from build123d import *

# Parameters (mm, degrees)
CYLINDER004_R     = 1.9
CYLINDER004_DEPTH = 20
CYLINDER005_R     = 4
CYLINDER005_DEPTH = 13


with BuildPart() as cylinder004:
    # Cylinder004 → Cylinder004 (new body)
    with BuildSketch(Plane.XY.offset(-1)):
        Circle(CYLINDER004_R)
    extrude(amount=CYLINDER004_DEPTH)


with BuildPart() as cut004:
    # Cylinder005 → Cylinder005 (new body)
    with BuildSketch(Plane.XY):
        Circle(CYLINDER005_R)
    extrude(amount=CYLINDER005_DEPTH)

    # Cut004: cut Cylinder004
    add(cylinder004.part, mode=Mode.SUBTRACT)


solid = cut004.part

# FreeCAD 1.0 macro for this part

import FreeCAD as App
import Part
import Sketcher
from FreeCAD import Vector

doc = App.newDocument("Part")
params = doc.addObject("Spreadsheet::Sheet", "Params")
for row, (alias, value) in enumerate([
    ("sketch1_diameter", "3.8 mm"),
    ("pad1_length", "20 mm"),
    ("sketch2_diameter", "8 mm"),
    ("pad2_length", "13 mm"),
], start=1):
    params.set(f"A{row}", alias)
    params.set(f"B{row}", "=" + value)
    params.setAlias(f"B{row}", alias)

body = doc.addObject("PartDesign::Body", "Body")

sketch1 = body.newObject("Sketcher::SketchObject", "Sketch")
sketch1.AttachmentSupport = (doc.getObject("XY_Plane"), [""])
sketch1.MapMode = "FlatFace"
sketch1.AttachmentOffset = App.Placement(Vector(0, 0, -1), App.Rotation())
sketch1.addGeometry(Part.Circle(Vector(0, 0, 0), Vector(0, 0, 1), 1.9), False)
sketch1.addConstraint([
    Sketcher.Constraint("Coincident", 0, 3, -1, 1),
    Sketcher.Constraint("Diameter", 0, 3.8),
])
sketch1.setExpression("Constraints[1]", "Params.sketch1_diameter")
pad1 = body.newObject("PartDesign::Pad", "Pad")
pad1.Profile = sketch1
pad1.setExpression("Length", "Params.pad1_length")
body2 = doc.addObject("PartDesign::Body", "Body001")

sketch2 = body2.newObject("Sketcher::SketchObject", "Sketch001")
sketch2.AttachmentSupport = (doc.getObject("XY_Plane001"), [""])
sketch2.MapMode = "FlatFace"
sketch2.addGeometry(Part.Circle(Vector(0, 0, 0), Vector(0, 0, 1), 4), False)
sketch2.addConstraint([
    Sketcher.Constraint("Coincident", 0, 3, -1, 1),
    Sketcher.Constraint("Diameter", 0, 8.0),
])
sketch2.setExpression("Constraints[1]", "Params.sketch2_diameter")
pad2 = body2.newObject("PartDesign::Pad", "Pad001")
pad2.Profile = sketch2
pad2.setExpression("Length", "Params.pad2_length")
doc.recompute()

boolean = body2.newObject("PartDesign::Boolean", "Boolean")
boolean.Type = "Cut"
boolean.addObjects([body])

doc.recompute()
